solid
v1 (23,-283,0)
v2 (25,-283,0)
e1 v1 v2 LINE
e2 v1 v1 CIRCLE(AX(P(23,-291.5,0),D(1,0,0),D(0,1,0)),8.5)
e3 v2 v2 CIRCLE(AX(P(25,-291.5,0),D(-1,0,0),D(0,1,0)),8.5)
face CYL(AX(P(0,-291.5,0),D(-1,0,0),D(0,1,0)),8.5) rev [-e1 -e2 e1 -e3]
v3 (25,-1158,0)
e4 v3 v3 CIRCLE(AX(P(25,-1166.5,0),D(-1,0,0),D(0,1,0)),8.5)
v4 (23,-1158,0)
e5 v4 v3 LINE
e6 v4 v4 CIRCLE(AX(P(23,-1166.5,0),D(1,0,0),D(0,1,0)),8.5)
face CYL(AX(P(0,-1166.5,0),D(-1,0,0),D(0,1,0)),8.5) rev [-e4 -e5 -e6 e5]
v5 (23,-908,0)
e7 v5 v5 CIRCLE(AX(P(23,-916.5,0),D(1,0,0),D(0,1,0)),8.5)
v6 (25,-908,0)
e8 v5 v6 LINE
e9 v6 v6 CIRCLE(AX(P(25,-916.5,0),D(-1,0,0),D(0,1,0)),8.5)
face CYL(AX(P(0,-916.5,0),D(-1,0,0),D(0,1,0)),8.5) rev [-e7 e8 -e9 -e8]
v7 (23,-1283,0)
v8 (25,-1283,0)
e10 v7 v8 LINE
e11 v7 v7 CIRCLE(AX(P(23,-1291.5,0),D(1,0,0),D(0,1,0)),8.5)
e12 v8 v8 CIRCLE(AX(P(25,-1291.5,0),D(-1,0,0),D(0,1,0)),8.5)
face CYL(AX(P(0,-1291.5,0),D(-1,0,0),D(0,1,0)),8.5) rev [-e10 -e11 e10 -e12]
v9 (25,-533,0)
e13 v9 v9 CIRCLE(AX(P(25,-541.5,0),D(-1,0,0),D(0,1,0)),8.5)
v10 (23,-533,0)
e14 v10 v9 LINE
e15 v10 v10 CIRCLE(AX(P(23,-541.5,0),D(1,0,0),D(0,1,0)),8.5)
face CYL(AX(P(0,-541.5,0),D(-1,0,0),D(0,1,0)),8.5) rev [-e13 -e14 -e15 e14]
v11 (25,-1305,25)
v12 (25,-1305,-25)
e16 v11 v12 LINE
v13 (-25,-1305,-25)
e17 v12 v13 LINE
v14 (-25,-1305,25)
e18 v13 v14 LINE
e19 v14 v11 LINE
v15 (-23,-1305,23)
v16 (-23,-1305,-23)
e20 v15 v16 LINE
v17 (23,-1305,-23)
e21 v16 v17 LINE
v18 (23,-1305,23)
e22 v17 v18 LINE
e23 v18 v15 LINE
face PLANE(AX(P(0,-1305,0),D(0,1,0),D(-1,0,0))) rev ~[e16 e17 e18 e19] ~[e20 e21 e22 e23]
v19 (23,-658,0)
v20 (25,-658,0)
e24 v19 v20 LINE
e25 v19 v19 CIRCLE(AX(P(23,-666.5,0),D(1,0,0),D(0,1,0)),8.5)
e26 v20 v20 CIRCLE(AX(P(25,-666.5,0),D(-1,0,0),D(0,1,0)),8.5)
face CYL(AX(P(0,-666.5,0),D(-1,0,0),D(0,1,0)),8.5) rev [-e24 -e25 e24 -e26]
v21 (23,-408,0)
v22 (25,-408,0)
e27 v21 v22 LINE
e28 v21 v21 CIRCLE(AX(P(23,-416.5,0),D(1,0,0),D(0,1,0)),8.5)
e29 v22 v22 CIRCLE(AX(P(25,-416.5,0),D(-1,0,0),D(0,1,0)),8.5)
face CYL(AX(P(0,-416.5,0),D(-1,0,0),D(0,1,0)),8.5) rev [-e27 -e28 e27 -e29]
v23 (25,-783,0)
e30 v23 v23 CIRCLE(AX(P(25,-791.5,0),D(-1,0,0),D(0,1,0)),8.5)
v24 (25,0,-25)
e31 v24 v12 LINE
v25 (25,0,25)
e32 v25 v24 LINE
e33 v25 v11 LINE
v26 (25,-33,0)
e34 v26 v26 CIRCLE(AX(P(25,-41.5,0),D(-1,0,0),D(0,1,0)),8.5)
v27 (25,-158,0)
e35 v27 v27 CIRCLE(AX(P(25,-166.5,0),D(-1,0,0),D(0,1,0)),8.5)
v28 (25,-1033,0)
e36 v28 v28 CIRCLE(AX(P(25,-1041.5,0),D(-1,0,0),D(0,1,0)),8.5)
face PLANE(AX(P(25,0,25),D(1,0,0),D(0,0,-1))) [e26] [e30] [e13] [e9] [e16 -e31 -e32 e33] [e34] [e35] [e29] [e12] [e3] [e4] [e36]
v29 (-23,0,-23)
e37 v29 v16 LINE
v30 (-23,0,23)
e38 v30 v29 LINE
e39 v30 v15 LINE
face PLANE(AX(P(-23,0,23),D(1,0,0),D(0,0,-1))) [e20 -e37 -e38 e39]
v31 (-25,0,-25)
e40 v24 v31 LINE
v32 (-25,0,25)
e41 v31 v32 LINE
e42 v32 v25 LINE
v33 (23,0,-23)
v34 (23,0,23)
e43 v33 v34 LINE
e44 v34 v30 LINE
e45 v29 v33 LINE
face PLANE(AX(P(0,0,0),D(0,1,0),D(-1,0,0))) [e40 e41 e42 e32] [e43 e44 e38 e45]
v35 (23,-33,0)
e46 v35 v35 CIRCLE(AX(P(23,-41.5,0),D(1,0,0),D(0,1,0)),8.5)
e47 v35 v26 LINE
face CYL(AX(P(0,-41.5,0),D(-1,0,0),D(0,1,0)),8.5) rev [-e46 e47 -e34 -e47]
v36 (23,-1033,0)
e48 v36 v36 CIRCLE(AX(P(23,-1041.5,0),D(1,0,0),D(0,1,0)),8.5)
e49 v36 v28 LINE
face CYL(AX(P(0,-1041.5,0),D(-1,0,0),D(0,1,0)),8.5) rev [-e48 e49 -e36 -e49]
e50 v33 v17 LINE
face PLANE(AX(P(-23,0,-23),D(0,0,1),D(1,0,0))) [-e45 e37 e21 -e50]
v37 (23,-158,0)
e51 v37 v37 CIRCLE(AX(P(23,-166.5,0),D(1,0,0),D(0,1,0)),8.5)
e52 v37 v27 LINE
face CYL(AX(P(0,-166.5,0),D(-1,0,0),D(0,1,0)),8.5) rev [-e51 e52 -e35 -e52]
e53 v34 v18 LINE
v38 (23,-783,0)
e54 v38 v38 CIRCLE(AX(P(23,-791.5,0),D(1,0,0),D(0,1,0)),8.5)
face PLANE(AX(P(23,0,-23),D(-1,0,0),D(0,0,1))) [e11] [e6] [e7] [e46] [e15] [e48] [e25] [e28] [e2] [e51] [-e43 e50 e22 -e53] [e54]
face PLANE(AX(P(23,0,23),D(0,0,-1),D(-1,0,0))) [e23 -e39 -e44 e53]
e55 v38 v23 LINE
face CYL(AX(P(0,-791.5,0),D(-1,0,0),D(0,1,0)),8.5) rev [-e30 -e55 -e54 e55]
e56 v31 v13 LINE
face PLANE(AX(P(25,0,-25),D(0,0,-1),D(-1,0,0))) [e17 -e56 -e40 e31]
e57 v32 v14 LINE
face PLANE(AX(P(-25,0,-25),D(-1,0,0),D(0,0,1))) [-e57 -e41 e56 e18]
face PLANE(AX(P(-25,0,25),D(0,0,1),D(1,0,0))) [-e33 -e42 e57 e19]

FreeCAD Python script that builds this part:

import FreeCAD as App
import Part
import Sketcher
Q = App.Units.Quantity

doc = App.newDocument("Part")
params = doc.addObject("Spreadsheet::Sheet", "Params")
for row, (alias, value) in enumerate([
    ("sketch1_width", "50 mm"),
    ("pad1_length", "1305 mm"),
    ("sketch2_diameter", "17 mm"),
    ("linearpattern_pitch", "125 mm"),
], start=1):
    params.set(f"A{row}", alias)
    params.set(f"B{row}", "=" + value)
    params.setAlias(f"B{row}", alias)

body = doc.addObject("PartDesign::Body", "Body")

sketch1 = doc.addObject("Sketcher::SketchObject", "Sketch")
body.addObject(sketch1)
sketch1.AttachmentSupport = (doc.XZ_Plane, [""])
sketch1.MapMode = "FlatFace"
sketch1.addGeometry(Part.LineSegment(App.Vector(-25, -25, 0), App.Vector(-25, 25, 0)), False)
sketch1.addGeometry(Part.LineSegment(App.Vector(-25, 25, 0), App.Vector(25, 25, 0)), False)
sketch1.addGeometry(Part.LineSegment(App.Vector(25, 25, 0), App.Vector(25, -25, 0)), False)
sketch1.addGeometry(Part.LineSegment(App.Vector(25, -25, 0), App.Vector(-25, -25, 0)), False)
sketch1.addGeometry(Part.LineSegment(App.Vector(23, -23, 0), App.Vector(23, 23, 0)), False)
sketch1.addGeometry(Part.LineSegment(App.Vector(23, 23, 0), App.Vector(-23, 23, 0)), False)
sketch1.addGeometry(Part.LineSegment(App.Vector(-23, 23, 0), App.Vector(-23, -23, 0)), False)
sketch1.addGeometry(Part.LineSegment(App.Vector(-23, -23, 0), App.Vector(23, -23, 0)), False)
sketch1.addConstraint(Sketcher.Constraint("Coincident", 0, 2, 1, 1))
sketch1.addConstraint(Sketcher.Constraint("Coincident", 1, 2, 2, 1))
sketch1.addConstraint(Sketcher.Constraint("Coincident", 2, 2, 3, 1))
sketch1.addConstraint(Sketcher.Constraint("Coincident", 3, 2, 0, 1))
sketch1.addConstraint(Sketcher.Constraint("Coincident", 4, 2, 5, 1))
sketch1.addConstraint(Sketcher.Constraint("Coincident", 5, 2, 6, 1))
sketch1.addConstraint(Sketcher.Constraint("Coincident", 6, 2, 7, 1))
sketch1.addConstraint(Sketcher.Constraint("Coincident", 7, 2, 4, 1))
sketch1.addConstraint(Sketcher.Constraint("Vertical", 0))
sketch1.addConstraint(Sketcher.Constraint("Horizontal", 1))
sketch1.addConstraint(Sketcher.Constraint("Vertical", 2))
sketch1.addConstraint(Sketcher.Constraint("Horizontal", 3))
sketch1.addConstraint(Sketcher.Constraint("Vertical", 4))
sketch1.addConstraint(Sketcher.Constraint("Horizontal", 5))
sketch1.addConstraint(Sketcher.Constraint("Vertical", 6))
sketch1.addConstraint(Sketcher.Constraint("Horizontal", 7))
sketch1.addConstraint(Sketcher.Constraint("Symmetric", 0, 2, 2, 2, -1, 1))
sketch1.addConstraint(Sketcher.Constraint("Symmetric", 4, 2, 6, 2, -1, 1))
sketch1.addConstraint(Sketcher.Constraint("Equal", 3, 0))
sketch1.addConstraint(Sketcher.Constraint("Equal", 7, 4))
sketch1.addConstraint(Sketcher.Constraint("DistanceX", 1, 1, 1, 2, Q("50 mm")))
sketch1.addConstraint(Sketcher.Constraint("DistanceX", 4, 2, 1, 2, Q("2 mm")))
sketch1.setExpression("Constraints[20]", "Params.sketch1_width")
pad1 = doc.addObject("PartDesign::Pad", "Pad")
body.addObject(pad1)
pad1.Profile = sketch1
pad1.setExpression("Length", "Params.pad1_length")

sketch2 = doc.addObject("Sketcher::SketchObject", "Sketch001")
body.addObject(sketch2)
sketch2.AttachmentSupport = (doc.YZ_Plane, [""])
sketch2.MapMode = "FlatFace"
sketch2.addGeometry(Part.Circle(App.Vector(-1292, 0, 0), App.Vector(0, 0, 1), 8), False)
sketch2.addConstraint(Sketcher.Constraint("PointOnObject", 0, 3, -1))
sketch2.addConstraint(Sketcher.Constraint("Diameter", 0, Q("17 mm")))
sketch2.addConstraint(Sketcher.Constraint("DistanceX", 0, 3, -1, 1, Q("1291.5 mm")))
sketch2.setExpression("Constraints[1]", "Params.sketch2_diameter")
pocket1 = doc.addObject("PartDesign::Pocket", "Pocket")
body.addObject(pocket1)
pocket1.Profile = sketch2
pocket1.Type = "ThroughAll"
pocket1.Reversed = True
doc.recompute()

linearpattern = doc.addObject("PartDesign::LinearPattern", "LinearPattern")
body.addObject(linearpattern)
linearpattern.Originals = [pocket1]
linearpattern.Direction = (doc.Y_Axis, [""])
linearpattern.Mode = "offset"
linearpattern.setExpression("Offset", "Params.linearpattern_pitch")
linearpattern.Occurrences = 11
body.Tip = linearpattern

doc.recompute()
